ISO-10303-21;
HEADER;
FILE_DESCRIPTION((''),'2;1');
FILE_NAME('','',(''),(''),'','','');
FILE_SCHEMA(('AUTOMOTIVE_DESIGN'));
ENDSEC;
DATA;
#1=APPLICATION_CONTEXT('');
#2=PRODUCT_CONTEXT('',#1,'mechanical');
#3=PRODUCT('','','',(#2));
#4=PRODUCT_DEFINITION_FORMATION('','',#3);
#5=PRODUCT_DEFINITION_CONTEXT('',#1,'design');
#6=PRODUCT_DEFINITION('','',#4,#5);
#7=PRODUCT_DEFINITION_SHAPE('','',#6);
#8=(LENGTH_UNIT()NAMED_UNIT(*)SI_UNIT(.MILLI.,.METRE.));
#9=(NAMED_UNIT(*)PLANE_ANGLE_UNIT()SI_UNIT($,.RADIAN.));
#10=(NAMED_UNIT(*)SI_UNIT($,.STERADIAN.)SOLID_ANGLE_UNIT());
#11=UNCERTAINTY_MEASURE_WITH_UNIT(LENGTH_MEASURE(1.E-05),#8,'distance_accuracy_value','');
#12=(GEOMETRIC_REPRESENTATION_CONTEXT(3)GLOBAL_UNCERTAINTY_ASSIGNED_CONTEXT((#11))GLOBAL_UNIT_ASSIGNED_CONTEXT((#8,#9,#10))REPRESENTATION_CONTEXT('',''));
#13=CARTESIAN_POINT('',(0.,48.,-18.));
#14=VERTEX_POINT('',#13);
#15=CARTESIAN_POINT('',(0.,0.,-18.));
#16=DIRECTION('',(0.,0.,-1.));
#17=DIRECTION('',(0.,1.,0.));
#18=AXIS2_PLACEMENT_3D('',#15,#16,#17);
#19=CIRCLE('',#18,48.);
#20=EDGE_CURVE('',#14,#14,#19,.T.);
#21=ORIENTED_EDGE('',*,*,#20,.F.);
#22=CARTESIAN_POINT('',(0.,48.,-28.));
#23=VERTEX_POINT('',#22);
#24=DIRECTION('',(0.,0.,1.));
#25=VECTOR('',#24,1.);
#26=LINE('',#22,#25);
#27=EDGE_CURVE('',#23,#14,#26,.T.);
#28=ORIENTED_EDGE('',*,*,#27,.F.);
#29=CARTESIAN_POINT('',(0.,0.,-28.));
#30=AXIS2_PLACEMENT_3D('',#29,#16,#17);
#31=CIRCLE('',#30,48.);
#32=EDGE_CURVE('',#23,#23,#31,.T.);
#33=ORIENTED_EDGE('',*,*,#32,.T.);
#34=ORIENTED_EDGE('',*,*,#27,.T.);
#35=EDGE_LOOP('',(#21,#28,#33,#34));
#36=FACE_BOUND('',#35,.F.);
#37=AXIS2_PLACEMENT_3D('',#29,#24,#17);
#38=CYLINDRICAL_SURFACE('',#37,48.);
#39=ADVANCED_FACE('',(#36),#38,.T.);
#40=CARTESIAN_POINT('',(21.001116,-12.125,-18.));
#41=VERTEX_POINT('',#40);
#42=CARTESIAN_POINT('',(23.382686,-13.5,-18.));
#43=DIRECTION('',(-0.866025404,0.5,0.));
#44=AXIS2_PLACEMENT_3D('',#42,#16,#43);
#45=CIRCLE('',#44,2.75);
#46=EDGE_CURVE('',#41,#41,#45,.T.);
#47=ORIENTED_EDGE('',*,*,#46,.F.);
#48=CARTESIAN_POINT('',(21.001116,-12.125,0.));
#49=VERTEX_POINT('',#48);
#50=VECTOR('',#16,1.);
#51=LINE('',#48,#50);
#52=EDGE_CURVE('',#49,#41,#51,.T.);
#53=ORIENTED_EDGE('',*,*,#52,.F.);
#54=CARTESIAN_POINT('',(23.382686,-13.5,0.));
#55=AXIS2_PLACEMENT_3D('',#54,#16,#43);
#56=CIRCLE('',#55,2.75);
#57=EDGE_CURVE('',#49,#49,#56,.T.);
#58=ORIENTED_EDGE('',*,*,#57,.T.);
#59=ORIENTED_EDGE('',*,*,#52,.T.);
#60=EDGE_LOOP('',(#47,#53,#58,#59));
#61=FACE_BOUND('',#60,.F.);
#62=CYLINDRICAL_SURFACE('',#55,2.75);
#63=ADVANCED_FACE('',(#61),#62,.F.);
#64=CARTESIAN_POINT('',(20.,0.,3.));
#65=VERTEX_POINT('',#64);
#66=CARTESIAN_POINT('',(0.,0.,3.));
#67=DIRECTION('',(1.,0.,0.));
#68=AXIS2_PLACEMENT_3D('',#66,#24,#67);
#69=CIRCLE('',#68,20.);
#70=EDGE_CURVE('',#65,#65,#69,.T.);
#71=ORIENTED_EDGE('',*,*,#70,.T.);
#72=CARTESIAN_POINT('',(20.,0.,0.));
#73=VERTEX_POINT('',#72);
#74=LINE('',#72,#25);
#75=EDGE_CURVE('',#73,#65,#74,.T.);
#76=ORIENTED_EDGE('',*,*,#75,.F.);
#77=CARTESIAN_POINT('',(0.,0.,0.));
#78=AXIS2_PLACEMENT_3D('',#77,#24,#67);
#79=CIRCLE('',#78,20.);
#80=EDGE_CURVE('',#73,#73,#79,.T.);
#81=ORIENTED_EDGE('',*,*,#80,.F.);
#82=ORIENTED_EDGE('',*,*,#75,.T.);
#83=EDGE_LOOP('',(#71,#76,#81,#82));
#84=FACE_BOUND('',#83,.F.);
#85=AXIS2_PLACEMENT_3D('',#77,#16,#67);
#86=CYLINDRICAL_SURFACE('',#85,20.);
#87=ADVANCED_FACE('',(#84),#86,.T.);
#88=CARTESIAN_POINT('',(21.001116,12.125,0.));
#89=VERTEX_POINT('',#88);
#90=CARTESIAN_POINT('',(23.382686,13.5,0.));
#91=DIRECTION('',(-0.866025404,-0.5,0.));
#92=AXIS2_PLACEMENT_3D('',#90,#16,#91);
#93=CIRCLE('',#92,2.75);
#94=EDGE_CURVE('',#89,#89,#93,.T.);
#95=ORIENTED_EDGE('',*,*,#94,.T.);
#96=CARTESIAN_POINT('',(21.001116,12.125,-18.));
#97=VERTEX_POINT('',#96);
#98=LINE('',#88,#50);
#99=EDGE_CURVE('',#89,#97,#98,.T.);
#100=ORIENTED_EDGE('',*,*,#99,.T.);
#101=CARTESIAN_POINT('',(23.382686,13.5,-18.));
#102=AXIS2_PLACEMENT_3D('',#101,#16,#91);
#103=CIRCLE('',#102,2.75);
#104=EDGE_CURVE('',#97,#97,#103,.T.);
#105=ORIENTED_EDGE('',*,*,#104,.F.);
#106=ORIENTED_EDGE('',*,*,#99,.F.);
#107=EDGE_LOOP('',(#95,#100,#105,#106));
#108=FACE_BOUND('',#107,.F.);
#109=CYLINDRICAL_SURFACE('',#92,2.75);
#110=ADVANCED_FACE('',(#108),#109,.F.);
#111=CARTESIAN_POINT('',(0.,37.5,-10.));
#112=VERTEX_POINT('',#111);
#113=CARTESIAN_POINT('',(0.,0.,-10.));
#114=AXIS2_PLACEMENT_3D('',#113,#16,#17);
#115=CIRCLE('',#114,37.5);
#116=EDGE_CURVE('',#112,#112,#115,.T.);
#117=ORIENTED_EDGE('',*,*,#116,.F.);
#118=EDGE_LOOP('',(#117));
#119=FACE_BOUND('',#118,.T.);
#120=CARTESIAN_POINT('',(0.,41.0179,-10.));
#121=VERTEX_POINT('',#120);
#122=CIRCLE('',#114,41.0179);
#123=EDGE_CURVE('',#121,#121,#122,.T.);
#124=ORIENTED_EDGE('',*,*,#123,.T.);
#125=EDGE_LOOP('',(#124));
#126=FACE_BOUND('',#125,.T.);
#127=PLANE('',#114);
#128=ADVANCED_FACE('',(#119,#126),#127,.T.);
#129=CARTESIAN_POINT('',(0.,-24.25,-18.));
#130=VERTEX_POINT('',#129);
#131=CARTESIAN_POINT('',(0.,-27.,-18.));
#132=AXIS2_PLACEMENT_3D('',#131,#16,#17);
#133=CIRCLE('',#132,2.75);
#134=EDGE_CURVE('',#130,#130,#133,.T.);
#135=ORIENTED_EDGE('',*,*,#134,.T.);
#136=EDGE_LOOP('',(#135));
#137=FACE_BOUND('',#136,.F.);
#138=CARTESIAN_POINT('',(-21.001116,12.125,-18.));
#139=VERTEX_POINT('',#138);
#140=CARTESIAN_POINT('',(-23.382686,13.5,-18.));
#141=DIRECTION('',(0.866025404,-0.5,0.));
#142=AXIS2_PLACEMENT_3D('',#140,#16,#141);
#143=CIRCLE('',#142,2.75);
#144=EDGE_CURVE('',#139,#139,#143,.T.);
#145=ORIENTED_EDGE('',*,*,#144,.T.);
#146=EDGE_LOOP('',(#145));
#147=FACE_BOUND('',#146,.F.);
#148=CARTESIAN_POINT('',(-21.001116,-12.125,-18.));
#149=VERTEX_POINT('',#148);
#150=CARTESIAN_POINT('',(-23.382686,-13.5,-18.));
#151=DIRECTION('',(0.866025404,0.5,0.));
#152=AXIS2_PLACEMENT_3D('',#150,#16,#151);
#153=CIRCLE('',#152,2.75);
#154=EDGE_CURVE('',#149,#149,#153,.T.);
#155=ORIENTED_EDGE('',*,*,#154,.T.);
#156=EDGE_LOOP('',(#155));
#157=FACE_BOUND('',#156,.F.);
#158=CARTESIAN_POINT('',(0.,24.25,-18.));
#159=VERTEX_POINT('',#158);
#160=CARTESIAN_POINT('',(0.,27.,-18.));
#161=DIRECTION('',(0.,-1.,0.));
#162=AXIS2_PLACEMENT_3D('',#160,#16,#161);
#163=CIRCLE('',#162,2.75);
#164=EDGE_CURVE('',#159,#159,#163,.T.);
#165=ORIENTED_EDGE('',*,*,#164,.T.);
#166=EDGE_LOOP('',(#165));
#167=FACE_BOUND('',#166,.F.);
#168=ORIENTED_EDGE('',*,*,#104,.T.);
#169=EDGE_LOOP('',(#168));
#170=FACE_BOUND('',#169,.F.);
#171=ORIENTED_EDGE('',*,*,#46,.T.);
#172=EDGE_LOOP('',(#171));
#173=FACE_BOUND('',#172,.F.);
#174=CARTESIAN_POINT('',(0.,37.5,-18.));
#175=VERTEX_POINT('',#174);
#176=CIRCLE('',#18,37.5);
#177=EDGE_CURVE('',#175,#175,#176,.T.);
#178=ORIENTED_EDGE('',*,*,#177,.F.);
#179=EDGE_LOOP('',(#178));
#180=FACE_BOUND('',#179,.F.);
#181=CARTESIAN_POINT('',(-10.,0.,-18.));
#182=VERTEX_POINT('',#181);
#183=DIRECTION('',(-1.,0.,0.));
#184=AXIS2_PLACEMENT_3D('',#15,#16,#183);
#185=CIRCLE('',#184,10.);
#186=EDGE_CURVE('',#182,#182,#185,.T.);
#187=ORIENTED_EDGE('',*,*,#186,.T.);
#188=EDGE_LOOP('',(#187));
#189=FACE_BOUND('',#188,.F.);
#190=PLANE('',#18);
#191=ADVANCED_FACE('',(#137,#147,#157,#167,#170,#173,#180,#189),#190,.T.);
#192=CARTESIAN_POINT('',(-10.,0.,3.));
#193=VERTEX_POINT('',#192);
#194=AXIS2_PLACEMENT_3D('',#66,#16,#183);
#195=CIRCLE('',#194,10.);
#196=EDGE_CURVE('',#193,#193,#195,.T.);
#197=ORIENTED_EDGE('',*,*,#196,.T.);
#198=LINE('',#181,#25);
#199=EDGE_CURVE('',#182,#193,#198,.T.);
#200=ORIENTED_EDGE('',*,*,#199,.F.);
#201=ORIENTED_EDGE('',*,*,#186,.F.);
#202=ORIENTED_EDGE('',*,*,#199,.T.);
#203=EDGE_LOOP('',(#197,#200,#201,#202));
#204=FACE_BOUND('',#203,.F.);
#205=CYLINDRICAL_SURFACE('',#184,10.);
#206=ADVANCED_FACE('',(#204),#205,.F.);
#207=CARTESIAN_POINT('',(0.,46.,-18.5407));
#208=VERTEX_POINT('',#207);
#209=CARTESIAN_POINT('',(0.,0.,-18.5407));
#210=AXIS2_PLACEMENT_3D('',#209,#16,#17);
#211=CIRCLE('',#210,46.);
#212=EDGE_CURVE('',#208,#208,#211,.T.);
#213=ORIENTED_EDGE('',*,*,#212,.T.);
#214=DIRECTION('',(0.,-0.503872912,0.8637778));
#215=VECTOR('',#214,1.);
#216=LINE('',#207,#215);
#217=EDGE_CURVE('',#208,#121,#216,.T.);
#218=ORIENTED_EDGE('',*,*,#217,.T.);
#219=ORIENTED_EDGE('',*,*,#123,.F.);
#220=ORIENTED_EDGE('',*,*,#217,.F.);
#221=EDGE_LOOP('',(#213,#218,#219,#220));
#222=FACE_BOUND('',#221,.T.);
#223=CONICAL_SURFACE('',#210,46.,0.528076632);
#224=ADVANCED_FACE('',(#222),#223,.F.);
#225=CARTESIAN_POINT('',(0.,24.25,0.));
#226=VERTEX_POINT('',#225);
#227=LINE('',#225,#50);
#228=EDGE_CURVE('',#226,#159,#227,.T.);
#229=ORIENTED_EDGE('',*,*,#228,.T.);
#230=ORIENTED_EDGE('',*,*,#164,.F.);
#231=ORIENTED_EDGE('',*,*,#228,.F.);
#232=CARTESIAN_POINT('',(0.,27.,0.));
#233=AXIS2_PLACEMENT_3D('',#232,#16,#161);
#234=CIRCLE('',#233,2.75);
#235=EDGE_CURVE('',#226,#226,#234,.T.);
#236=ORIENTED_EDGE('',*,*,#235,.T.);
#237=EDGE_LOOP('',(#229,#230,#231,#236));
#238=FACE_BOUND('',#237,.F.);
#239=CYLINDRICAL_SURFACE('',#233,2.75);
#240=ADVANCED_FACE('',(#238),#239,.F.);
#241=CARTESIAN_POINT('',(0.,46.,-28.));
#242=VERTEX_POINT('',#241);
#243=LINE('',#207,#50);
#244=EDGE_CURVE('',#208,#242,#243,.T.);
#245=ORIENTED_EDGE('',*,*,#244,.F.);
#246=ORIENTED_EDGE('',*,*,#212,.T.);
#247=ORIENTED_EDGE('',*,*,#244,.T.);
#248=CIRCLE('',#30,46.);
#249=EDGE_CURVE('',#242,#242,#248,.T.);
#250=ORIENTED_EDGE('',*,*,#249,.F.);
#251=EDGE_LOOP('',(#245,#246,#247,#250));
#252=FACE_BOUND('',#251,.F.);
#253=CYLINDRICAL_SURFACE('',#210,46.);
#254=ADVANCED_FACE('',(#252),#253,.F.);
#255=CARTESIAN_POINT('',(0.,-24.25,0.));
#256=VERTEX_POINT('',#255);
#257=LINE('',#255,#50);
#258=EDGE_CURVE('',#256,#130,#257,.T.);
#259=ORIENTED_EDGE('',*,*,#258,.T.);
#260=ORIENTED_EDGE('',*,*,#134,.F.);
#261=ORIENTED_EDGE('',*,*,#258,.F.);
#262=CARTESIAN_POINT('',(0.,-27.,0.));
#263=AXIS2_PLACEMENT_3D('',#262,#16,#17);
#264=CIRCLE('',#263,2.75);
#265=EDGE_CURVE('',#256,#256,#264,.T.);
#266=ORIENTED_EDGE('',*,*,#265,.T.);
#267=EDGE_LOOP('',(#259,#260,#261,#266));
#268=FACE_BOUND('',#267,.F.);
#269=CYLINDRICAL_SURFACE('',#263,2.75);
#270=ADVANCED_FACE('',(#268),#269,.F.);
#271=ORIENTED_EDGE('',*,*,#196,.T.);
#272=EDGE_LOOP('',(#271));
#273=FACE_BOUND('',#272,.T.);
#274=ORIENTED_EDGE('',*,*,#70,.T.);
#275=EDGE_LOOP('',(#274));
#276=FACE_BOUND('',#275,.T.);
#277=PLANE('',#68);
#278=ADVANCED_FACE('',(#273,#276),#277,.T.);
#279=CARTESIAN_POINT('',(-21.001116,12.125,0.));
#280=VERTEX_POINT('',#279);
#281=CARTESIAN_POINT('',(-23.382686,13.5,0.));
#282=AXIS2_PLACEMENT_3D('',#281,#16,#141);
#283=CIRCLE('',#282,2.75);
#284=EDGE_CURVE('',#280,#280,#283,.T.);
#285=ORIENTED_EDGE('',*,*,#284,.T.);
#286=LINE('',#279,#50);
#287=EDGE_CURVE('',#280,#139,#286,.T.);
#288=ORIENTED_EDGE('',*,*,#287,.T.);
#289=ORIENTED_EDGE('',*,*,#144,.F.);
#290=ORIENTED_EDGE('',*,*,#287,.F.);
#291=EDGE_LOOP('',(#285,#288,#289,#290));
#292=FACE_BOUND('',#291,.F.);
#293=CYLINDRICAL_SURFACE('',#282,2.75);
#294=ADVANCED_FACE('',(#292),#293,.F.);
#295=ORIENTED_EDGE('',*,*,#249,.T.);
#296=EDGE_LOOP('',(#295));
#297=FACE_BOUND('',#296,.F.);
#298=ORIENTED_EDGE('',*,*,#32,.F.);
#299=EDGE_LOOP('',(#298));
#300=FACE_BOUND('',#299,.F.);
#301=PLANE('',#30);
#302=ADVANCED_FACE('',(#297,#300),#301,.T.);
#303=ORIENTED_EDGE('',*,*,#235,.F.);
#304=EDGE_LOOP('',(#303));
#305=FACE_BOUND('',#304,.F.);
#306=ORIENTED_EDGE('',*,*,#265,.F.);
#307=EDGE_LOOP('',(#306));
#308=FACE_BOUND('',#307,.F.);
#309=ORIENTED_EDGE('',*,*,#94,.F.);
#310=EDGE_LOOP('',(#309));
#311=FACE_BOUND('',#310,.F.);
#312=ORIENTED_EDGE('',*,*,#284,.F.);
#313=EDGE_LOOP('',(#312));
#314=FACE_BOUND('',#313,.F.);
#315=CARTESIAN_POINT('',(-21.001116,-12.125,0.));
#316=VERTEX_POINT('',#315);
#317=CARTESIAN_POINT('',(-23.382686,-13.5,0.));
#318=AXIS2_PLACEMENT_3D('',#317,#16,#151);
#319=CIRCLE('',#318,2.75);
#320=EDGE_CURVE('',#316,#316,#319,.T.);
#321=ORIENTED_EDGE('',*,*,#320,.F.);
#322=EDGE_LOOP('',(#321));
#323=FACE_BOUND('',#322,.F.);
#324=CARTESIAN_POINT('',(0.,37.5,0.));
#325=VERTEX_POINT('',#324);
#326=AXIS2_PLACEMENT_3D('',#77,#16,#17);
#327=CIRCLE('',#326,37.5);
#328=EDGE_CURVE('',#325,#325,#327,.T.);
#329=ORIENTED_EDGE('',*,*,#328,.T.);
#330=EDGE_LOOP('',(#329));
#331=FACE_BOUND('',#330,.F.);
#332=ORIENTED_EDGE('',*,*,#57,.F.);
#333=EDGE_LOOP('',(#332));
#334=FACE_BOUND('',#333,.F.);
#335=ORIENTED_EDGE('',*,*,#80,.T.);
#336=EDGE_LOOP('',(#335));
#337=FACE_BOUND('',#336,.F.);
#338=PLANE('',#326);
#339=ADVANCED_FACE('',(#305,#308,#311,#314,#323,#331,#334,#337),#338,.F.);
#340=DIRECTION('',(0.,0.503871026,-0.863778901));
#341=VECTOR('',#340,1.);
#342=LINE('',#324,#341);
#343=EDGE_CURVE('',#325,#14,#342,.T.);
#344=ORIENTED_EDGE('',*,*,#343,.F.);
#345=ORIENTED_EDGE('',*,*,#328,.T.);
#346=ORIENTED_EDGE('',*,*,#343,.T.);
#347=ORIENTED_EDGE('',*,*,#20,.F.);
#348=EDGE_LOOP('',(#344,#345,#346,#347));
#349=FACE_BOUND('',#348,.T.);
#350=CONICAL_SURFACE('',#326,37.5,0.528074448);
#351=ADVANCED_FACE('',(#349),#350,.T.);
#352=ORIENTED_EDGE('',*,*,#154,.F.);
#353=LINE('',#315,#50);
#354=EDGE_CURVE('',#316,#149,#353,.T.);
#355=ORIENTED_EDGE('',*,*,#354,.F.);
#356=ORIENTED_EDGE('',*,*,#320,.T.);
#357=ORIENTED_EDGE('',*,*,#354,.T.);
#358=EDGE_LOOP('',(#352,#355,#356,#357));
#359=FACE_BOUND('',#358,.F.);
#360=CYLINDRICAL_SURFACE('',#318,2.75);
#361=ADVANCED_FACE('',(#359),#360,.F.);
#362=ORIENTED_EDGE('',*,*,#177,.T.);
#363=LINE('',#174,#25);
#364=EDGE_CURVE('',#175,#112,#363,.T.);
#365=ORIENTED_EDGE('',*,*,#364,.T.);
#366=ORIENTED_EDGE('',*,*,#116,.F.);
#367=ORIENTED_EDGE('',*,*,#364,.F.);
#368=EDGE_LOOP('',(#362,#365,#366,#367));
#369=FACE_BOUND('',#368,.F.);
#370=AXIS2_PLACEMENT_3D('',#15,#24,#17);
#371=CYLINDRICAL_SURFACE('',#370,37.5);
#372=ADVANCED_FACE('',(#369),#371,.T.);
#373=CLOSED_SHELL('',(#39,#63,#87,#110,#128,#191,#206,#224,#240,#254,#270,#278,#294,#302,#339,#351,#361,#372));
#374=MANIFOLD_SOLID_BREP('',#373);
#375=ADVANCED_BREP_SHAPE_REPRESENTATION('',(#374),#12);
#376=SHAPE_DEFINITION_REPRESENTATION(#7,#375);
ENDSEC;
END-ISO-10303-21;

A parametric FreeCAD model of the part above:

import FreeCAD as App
import Part
import Sketcher
from FreeCAD import Vector
Q = App.Units.Quantity


def add_polygon(sketch, points):
    """Adds a closed chain of lines whose ends are joined by coincident constraints."""
    first, n = sketch.GeometryCount, len(points)
    for a, b in zip(points, points[1:] + points[:1]):
        sketch.addGeometry(Part.LineSegment(App.Vector(*a, 0), App.Vector(*b, 0)), False)
    for i in range(n):
        sketch.addConstraint(Sketcher.Constraint("Coincident", first + i, 2, first + (i + 1) % n, 1))

doc = App.newDocument("Part")
body = doc.addObject("PartDesign::Body", "Body")

# Sketch on YZ plane
sketch1 = body.newObject("Sketcher::SketchObject", "Sketch")
sketch1.AttachmentSupport = (doc.getObject("YZ_Plane"), [""])
sketch1.MapMode = "FlatFace"
add_polygon(sketch1, [(37.5, 0), (0, 0), (0, -18), (37.5, -18), (37.5, -10), (41, -10), (46, -18.5), (46, -28), (48, -28), (48, -18)])  # lines 0-9
sketch1.addConstraint([
    Sketcher.Constraint("Horizontal", 0),
    Sketcher.Constraint("Vertical", 1),
    Sketcher.Constraint("Horizontal", 2),
    Sketcher.Constraint("Vertical", 3),
    Sketcher.Constraint("Horizontal", 4),
    Sketcher.Constraint("Vertical", 6),
    Sketcher.Constraint("Horizontal", 7),
    Sketcher.Constraint("Vertical", 8),
    Sketcher.Constraint("Coincident", 0, 2, -1, 1),
    Sketcher.Constraint("Parallel", 5, 9),
    Sketcher.Constraint("Horizontal", 2, 2, 8, 2),
    Sketcher.Constraint("Vertical", 3, 2, 9, 2),
    Sketcher.Constraint("DistanceX", 7, 1, 7, 2, Q("2 mm")),
    Sketcher.Constraint("DistanceY", 1, 2, 1, 1, Q("18 mm")),
    Sketcher.Constraint("DistanceY", 8, 1, 8, 2, Q("10 mm")),
    Sketcher.Constraint("DistanceY", 3, 2, -1, 1, Q("10 mm")),
    Sketcher.Constraint("DistanceX", 0, 2, 0, 1, Q("37.5 mm")),
    Sketcher.Constraint("DistanceX", -1, 1, 5, 2, Q("46 mm")),
    Sketcher.Constraint("DistanceX", 4, 1, 4, 2, Q("3.518 mm")),
])
revolution = body.newObject("PartDesign::Revolution", "Revolution")
revolution.Profile = sketch1
revolution.ReferenceAxis = (sketch1, ["V_Axis"])
revolution.Angle = 360

# Sketch on XY plane
sketch2 = body.newObject("Sketcher::SketchObject", "Sketch001")
sketch2.AttachmentSupport = (doc.getObject("XY_Plane"), [""])
sketch2.MapMode = "FlatFace"
sketch2.addGeometry(Part.Circle(Vector(0, 0, 0), Vector(0, 0, 1), 20), False)
sketch2.addConstraint([
    Sketcher.Constraint("Coincident", 0, 3, -1, 1),
    Sketcher.Constraint("Diameter", 0, Q("40 mm")),
])
pad1 = body.newObject("PartDesign::Pad", "Pad")
pad1.Profile = sketch2
pad1.Length = 3

# Sketch on XY plane
sketch3 = body.newObject("Sketcher::SketchObject", "Sketch002")
sketch3.AttachmentSupport = (doc.getObject("XY_Plane"), [""])
sketch3.MapMode = "FlatFace"
sketch3.AttachmentOffset = App.Placement(Vector(0, 0, -18), App.Rotation())
sketch3.addGeometry(Part.Circle(Vector(0, 0, 0), Vector(0, 0, 1), 10), False)
sketch3.addConstraint([
    Sketcher.Constraint("Coincident", 0, 3, -1, 1),
    Sketcher.Constraint("Diameter", 0, Q("20 mm")),
])
pocket1 = body.newObject("PartDesign::Pocket", "Pocket")
pocket1.Profile = sketch3
pocket1.Type = "ThroughAll"
pocket1.Reversed = True

# Sketch on XY plane
sketch4 = body.newObject("Sketcher::SketchObject", "Sketch003")
sketch4.AttachmentSupport = (doc.getObject("XY_Plane"), [""])
sketch4.MapMode = "FlatFace"
sketch4.addGeometry(Part.Circle(Vector(0, 27, 0), Vector(0, 0, 1), 2.8), False)
sketch4.addConstraint([
    Sketcher.Constraint("PointOnObject", 0, 3, -2),
    Sketcher.Constraint("Diameter", 0, Q("5.5 mm")),
    Sketcher.Constraint("DistanceY", -1, 1, 0, 3, Q("27 mm")),
])
doc.recompute()
hole = body.newObject("PartDesign::Hole", "Hole")
hole.Profile = sketch4
hole.ThreadType = "None"
hole.Diameter = 5.5
hole.DepthType = "ThroughAll"
doc.recompute()

polarpattern = body.newObject("PartDesign::PolarPattern", "PolarPattern")
polarpattern.Originals = [hole]
polarpattern.Axis = (doc.getObject("Z_Axis"), [""])
polarpattern.Angle = 360
polarpattern.Occurrences = 6
body.Tip = polarpattern

doc.recompute()
